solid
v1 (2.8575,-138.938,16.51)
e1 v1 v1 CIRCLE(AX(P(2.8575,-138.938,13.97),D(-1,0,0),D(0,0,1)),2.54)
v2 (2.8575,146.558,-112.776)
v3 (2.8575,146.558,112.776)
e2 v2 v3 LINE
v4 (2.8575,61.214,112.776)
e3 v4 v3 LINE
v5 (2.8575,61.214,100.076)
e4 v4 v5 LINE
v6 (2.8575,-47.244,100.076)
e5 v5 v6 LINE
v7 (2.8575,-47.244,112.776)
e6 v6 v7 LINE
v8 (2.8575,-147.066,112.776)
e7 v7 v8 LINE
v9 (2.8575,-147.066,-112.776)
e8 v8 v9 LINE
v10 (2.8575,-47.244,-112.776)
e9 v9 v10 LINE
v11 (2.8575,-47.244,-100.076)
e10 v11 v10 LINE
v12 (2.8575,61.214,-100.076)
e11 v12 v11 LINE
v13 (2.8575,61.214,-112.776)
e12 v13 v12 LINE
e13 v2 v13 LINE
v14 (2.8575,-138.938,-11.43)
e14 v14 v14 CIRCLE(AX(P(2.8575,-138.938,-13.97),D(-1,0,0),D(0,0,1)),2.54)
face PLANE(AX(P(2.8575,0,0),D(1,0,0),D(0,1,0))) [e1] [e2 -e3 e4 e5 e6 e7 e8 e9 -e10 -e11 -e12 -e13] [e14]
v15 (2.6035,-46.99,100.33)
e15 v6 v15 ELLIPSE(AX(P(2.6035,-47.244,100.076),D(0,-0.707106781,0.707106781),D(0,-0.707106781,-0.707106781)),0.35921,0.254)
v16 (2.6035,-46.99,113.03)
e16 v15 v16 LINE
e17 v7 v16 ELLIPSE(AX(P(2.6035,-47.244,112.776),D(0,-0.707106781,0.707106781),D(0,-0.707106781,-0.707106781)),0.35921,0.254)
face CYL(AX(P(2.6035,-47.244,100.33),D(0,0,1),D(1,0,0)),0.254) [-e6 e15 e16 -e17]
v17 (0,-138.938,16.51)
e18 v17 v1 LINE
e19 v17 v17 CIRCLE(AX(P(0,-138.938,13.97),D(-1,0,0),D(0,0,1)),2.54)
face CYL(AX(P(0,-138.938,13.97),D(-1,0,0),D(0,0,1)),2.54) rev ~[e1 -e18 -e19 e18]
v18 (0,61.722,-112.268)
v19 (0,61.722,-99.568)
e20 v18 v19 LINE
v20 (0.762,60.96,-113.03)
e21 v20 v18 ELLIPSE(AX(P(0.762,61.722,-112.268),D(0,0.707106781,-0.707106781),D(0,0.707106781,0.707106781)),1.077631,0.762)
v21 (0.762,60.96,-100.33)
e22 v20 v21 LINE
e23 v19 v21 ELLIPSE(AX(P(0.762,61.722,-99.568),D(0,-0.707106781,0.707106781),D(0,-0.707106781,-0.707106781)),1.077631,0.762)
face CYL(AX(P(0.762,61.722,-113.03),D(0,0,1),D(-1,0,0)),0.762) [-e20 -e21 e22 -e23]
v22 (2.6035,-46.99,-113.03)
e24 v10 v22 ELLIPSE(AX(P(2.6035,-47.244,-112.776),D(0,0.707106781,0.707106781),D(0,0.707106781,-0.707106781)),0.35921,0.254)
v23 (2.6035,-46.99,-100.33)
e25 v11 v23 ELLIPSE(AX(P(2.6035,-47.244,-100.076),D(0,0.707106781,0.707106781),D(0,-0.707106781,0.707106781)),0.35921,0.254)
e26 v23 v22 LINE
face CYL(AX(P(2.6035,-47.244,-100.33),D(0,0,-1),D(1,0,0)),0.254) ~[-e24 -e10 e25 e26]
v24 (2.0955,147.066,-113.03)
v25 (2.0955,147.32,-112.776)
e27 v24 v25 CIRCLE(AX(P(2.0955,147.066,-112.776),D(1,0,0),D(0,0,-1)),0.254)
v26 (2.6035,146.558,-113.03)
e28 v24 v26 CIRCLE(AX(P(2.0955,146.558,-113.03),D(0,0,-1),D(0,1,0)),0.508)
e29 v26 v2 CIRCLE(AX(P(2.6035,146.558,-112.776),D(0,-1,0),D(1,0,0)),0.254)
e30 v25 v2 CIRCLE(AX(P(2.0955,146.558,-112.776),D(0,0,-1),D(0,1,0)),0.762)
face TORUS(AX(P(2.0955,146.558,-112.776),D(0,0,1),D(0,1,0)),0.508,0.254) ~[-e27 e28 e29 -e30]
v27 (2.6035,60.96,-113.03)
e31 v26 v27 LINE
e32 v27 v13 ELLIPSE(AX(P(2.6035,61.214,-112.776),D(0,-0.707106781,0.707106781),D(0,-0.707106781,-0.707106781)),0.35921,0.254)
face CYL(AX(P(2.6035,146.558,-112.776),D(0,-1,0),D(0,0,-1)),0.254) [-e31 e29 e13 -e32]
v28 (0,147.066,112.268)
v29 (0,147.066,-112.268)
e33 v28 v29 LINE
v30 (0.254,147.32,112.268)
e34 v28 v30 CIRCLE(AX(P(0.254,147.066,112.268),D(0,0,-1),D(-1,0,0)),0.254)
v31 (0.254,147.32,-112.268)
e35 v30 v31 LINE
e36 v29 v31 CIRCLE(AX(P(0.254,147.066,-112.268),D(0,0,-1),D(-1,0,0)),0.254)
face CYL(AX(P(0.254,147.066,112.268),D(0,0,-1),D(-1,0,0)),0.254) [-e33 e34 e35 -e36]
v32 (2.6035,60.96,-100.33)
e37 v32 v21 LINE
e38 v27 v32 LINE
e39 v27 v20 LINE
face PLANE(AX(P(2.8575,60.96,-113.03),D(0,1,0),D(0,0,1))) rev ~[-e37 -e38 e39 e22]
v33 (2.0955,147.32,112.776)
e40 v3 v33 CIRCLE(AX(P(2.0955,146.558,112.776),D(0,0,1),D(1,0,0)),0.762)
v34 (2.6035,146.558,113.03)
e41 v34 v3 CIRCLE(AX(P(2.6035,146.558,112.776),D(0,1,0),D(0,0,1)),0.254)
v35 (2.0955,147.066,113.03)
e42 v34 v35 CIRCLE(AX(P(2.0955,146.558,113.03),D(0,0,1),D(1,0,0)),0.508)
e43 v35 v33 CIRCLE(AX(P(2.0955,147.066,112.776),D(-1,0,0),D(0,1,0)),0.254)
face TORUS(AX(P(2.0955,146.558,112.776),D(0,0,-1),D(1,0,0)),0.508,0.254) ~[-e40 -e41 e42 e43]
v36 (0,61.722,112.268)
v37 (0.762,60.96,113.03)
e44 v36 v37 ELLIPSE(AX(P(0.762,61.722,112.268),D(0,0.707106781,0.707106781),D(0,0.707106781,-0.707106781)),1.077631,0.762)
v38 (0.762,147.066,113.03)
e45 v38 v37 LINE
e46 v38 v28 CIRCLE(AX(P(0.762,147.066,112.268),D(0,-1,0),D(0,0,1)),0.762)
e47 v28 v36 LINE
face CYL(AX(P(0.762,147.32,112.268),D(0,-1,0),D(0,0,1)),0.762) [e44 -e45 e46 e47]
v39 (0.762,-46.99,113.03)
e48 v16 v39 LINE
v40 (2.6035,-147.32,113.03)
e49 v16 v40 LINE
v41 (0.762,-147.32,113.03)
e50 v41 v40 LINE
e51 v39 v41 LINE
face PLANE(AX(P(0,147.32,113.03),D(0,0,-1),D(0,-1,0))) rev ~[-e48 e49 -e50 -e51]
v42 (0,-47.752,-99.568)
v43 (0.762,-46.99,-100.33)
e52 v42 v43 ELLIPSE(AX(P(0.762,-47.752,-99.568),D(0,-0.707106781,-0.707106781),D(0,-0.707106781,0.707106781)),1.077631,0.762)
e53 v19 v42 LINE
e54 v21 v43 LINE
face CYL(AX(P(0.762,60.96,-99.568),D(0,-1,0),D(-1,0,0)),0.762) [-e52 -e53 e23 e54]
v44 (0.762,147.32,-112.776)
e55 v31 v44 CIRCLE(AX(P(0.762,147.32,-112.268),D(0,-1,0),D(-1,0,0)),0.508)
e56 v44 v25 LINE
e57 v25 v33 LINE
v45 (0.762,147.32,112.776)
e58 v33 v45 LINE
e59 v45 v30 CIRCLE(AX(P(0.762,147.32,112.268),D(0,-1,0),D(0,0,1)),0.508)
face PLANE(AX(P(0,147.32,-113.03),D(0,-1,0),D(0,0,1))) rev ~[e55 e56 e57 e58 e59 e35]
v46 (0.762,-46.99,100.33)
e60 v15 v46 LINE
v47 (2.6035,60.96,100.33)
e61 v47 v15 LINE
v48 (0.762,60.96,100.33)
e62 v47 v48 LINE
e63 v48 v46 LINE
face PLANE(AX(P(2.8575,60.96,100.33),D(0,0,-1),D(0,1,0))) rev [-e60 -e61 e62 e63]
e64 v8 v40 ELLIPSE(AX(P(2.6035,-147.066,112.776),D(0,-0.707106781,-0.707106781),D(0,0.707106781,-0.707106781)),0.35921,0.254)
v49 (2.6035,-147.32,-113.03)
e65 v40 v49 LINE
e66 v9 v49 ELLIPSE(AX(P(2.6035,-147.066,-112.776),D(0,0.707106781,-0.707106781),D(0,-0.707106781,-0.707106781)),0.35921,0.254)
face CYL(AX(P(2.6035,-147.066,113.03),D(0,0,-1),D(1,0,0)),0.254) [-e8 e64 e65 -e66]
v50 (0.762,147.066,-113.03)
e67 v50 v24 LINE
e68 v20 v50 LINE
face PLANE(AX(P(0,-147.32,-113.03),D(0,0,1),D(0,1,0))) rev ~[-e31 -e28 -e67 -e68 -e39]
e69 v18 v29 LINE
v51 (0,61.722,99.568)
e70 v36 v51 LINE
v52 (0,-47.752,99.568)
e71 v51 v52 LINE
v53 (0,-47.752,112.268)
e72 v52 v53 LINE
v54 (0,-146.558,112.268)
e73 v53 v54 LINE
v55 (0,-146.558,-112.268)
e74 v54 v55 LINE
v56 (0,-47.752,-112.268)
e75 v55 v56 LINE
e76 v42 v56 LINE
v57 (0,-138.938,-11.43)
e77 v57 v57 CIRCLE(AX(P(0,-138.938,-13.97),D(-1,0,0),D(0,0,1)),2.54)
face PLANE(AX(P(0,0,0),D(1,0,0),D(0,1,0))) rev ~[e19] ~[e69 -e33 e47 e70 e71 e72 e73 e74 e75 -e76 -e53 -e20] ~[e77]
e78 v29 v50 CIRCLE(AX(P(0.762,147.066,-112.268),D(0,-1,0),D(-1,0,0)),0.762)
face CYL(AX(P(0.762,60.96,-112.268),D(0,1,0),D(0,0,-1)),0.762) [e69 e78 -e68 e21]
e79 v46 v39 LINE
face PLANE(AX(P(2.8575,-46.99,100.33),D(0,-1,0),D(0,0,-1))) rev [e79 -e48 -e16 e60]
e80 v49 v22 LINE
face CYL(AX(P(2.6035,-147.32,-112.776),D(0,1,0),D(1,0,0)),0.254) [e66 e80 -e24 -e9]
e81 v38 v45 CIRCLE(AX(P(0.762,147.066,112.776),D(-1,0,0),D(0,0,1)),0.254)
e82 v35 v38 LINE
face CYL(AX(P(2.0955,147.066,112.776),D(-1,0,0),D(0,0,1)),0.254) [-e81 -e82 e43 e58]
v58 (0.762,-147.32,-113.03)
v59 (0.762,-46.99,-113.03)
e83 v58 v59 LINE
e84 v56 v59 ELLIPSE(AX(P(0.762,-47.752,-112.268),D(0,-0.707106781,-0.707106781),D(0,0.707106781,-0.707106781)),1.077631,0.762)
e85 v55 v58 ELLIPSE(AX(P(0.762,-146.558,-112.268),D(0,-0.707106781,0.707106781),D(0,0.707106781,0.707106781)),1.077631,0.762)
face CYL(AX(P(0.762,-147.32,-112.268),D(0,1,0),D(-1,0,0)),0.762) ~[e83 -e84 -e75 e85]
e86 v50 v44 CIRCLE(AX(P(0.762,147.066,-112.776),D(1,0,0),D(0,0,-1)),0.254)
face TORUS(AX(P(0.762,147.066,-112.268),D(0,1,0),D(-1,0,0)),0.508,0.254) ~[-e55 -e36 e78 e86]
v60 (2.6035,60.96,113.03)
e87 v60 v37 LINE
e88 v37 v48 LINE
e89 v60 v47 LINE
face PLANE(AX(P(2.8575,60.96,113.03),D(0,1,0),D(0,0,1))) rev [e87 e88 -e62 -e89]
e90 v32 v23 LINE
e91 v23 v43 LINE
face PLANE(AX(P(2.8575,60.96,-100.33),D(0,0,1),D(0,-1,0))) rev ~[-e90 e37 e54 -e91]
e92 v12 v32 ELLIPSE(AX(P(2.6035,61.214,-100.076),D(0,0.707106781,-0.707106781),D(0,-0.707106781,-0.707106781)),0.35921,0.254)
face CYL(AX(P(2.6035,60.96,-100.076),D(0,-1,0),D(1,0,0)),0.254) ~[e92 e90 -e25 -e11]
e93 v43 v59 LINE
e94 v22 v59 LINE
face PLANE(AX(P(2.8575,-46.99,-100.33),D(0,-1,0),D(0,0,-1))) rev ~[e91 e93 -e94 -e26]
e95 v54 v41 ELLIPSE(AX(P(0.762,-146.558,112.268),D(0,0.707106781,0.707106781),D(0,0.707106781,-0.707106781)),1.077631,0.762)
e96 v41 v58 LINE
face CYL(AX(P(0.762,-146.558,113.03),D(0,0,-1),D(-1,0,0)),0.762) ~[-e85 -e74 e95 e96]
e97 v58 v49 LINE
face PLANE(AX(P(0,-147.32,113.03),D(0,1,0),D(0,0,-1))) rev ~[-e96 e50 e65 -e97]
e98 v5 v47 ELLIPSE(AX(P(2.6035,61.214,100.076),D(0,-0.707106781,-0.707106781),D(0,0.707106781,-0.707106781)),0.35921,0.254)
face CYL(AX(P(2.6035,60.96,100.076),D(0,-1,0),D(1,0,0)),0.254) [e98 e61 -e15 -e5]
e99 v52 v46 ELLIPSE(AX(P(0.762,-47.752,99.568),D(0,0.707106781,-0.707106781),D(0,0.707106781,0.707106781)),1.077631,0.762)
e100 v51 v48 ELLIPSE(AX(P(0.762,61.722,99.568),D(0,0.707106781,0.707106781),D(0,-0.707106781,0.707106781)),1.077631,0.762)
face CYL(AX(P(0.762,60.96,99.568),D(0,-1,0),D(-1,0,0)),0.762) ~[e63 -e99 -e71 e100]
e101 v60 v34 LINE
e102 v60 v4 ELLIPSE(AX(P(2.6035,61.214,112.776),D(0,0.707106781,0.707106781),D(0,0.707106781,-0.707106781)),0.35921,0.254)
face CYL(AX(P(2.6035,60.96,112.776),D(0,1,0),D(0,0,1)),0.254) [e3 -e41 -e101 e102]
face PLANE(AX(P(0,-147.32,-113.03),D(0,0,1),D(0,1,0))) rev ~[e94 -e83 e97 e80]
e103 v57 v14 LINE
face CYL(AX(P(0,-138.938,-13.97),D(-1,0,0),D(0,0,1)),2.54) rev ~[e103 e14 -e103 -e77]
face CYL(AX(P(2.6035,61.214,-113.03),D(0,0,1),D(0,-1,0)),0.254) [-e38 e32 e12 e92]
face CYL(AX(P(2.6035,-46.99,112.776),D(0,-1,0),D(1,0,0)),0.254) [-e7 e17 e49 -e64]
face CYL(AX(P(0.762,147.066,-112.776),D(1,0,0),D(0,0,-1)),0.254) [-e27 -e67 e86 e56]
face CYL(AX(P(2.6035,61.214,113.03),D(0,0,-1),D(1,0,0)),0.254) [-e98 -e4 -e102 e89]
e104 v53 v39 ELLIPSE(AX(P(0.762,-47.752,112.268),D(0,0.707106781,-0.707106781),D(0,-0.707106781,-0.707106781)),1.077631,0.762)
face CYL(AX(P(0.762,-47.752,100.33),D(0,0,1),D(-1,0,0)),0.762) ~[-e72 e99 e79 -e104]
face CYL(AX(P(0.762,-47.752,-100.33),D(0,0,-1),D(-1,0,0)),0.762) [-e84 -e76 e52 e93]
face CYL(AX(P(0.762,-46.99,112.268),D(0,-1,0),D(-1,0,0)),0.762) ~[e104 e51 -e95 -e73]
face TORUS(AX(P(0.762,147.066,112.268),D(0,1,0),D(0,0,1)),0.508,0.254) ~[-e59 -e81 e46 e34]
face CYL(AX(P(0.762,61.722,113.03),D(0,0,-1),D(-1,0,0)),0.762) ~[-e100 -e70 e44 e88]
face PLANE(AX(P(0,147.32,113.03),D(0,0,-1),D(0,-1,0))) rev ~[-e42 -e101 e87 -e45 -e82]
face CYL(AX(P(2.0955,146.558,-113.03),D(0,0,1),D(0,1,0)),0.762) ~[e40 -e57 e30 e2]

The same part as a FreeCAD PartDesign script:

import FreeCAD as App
import Part
import Sketcher

V = App.Vector
Q = App.Units.Quantity


def edges_at(feature, points):
    """Names of the edges that pass closest to the given points."""
    edges = feature.Shape.Edges
    near = lambda p: min(range(len(edges)), key=lambda i: edges[i].distToShape(Part.Vertex(*p))[0])
    return sorted({f"Edge{near(p) + 1}" for p in points})


def add_polygon(sketch, points):
    """Adds a closed chain of lines whose ends are joined by coincident constraints."""
    first, n = sketch.GeometryCount, len(points)
    for a, b in zip(points, points[1:] + points[:1]):
        sketch.addGeometry(Part.LineSegment(App.Vector(*a, 0), App.Vector(*b, 0)), False)
    for i in range(n):
        sketch.addConstraint(Sketcher.Constraint("Coincident", first + i, 2, first + (i + 1) % n, 1))

doc = App.newDocument("Part")
body = doc.addObject("PartDesign::Body", "Body")

sketch1 = doc.addObject("Sketcher::SketchObject", "Sketch")
body.addObject(sketch1)
sketch1.AttachmentSupport = (doc.YZ_Plane, [""])
sketch1.MapMode = "FlatFace"
add_polygon(sketch1, [(147, -113), (147, 113), (-147, 113), (-147, -113)])
sketch1.addConstraint(Sketcher.Constraint("Vertical", 0))
sketch1.addConstraint(Sketcher.Constraint("Horizontal", 1))
sketch1.addConstraint(Sketcher.Constraint("Vertical", 2))
sketch1.addConstraint(Sketcher.Constraint("Horizontal", 3))
sketch1.addConstraint(Sketcher.Constraint("Symmetric", 0, 2, 2, 2, -1, 1))
sketch1.addConstraint(Sketcher.Constraint("DistanceX", 1, 2, 1, 1, Q("11.6 in")))
sketch1.addConstraint(Sketcher.Constraint("DistanceY", 0, 1, 0, 2, Q("8.9 in")))
pad1 = doc.addObject("PartDesign::Pad", "Pad")
body.addObject(pad1)
pad1.Profile = sketch1
pad1.Length = Q("0.1125 in")

sketch2 = doc.addObject("Sketcher::SketchObject", "Sketch001")
body.addObject(sketch2)
sketch2.AttachmentSupport = (doc.YZ_Plane, [""])
sketch2.MapMode = "FlatFace"
sketch2.AttachmentOffset = App.Placement(V(0, 0, 0.1125 * 25.4), App.Rotation())
add_polygon(sketch2, [(-47, -113), (61, -113), (61, -100), (-47, -100)])
sketch2.addConstraint(Sketcher.Constraint("Horizontal", 0))
sketch2.addConstraint(Sketcher.Constraint("Vertical", 1))
sketch2.addConstraint(Sketcher.Constraint("Horizontal", 2))
sketch2.addConstraint(Sketcher.Constraint("Vertical", 3))
sketch2.addConstraint(Sketcher.Constraint("DistanceY", 1, 1, 1, 2, Q("0.5 in")))
sketch2.addConstraint(Sketcher.Constraint("DistanceX", 0, 1, 0, 2, Q("4.25 in")))
sketch2.addConstraint(Sketcher.Constraint("DistanceX", -1, 1, 0, 2, Q("2.4 in")))
sketch2.addConstraint(Sketcher.Constraint("DistanceY", 0, 2, -1, 1, Q("4.45 in")))
pocket1 = doc.addObject("PartDesign::Pocket", "Pocket")
body.addObject(pocket1)
pocket1.Profile = sketch2
pocket1.Length = Q("0.1125 in")
doc.recompute()

mirrored = doc.addObject("PartDesign::Mirrored", "Mirrored")
body.addObject(mirrored)
mirrored.Originals = [pocket1]
mirrored.MirrorPlane = (doc.XY_Plane, [""])
body.Tip = mirrored
doc.recompute()

fillet = doc.addObject("PartDesign::Fillet", "Fillet")
body.addObject(fillet)
fillet.Base = (mirrored, edges_at(mirrored, [
    (0, 104.14, -113.03),
    (0, 6.985, -100.33),
    (0, 60.96, -106.68),
    (0, -97.155, -113.03),
    (0, -46.99, -106.68),
    (0, -147.32, 0),
    (0, -97.155, 113.03),
    (0, -46.99, 106.68),
    (0, 6.985, 100.33),
    (0, 60.96, 106.68),
    (0, 104.14, 113.03),
    (2.857, 147.32, 0),
]))
fillet.Radius = Q("0.03 in")
doc.recompute()

fillet2 = doc.addObject("PartDesign::Fillet", "Fillet001")
body.addObject(fillet2)
fillet2.Base = (fillet, edges_at(fillet, [
    (2.857, -147.32, 0),
    (2.857, -97.155, -113.03),
    (2.857, 6.985, -100.33),
    (2.857, -46.99, -106.68),
    (2.634, 147.097, -113.03),
    (1.429, 147.32, -113.03),
    (0.223, 147.32, -112.807),
    (0, 147.32, 0),
    (0.223, 147.32, 112.807),
    (1.429, 147.32, 113.03),
    (2.634, 147.097, 113.03),
    (2.857, 103.759, 113.03),
    (2.857, 103.759, -113.03),
    (2.857, 60.96, -106.68),
    (2.857, 60.96, 106.68),
    (2.857, 6.985, 100.33),
    (2.857, -97.155, 113.03),
    (2.857, -46.99, 106.68),
]))
fillet2.Radius = Q("0.01 in")

sketch3 = doc.addObject("Sketcher::SketchObject", "Sketch002")
body.addObject(sketch3)
sketch3.AttachmentSupport = (doc.YZ_Plane, [""])
sketch3.MapMode = "FlatFace"
sketch3.addGeometry(Part.Circle(V(-138.9, -14, 0), V(0, 0, 1), 2.5), False)
sketch3.addGeometry(Part.Circle(V(-138.9, 14, 0), V(0, 0, 1), 2.5), False)
sketch3.addConstraint(Sketcher.Constraint("Equal", 0, 1))
sketch3.addConstraint(Sketcher.Constraint("Symmetric", 0, 3, 1, 3, -1))
sketch3.addConstraint(Sketcher.Constraint("Diameter", 0, Q("0.2 in")))
sketch3.addConstraint(Sketcher.Constraint("DistanceY", 0, 3, -1, 1, Q("0.55 in")))
sketch3.addConstraint(Sketcher.Constraint("DistanceX", 0, 3, -1, 1, Q("5.47 in")))
pocket2 = doc.addObject("PartDesign::Pocket", "Pocket001")
body.addObject(pocket2)
pocket2.Profile = sketch3
pocket2.Type = "UpToFirst"
pocket2.Reversed = True

doc.recompute()
